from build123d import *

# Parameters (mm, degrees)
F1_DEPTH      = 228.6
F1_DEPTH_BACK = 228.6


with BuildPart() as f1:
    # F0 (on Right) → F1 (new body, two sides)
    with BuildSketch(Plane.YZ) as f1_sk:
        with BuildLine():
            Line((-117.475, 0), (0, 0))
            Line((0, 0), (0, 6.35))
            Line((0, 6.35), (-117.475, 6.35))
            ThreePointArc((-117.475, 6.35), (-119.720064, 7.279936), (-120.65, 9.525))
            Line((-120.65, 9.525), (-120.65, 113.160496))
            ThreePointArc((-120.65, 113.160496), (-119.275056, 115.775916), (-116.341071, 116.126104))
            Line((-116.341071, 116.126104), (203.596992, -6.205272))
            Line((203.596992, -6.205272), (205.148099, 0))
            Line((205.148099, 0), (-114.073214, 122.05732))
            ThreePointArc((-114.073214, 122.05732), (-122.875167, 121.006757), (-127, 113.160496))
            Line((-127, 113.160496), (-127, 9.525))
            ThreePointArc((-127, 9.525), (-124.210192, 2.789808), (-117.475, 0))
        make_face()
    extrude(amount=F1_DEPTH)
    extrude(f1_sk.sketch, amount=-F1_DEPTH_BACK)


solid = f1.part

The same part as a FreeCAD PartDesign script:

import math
import FreeCAD as App
import Part
import Sketcher
from FreeCAD import Vector
Q = App.Units.Quantity

doc = App.newDocument("Part")
body = doc.addObject("PartDesign::Body", "Body")

# Sketch on YZ plane
sketch1 = body.newObject("Sketcher::SketchObject", "Sketch")
sketch1.AttachmentSupport = (doc.getObject("YZ_Plane"), [""])
sketch1.MapMode = "FlatFace"
sketch1.addGeometry([
    Part.LineSegment(Vector(-117.5, 0, 0), Vector(0, 0, 0)),  # 0
    Part.LineSegment(Vector(0, 0, 0), Vector(0, 6.3, 0)),  # 1
    Part.LineSegment(Vector(0, 6.3, 0), Vector(-117.5, 6.3, 0)),  # 2
    Part.ArcOfCircle(Part.Circle(Vector(-117.5, 9.5, 0), Vector(0, 0, 1), 3.2), math.radians(-180), math.radians(-90)),  # 3
    Part.LineSegment(Vector(-120.7, 9.5, 0), Vector(-120.7, 113.2, 0)),  # 4
    Part.ArcOfCircle(Part.Circle(Vector(-117.5, 113.2, 0), Vector(0, 0, 1), 3.2), math.radians(69), math.radians(180)),  # 5
    Part.LineSegment(Vector(-116.3, 116.1, 0), Vector(203.6, -6.2, 0)),  # 6
    Part.LineSegment(Vector(203.6, -6.2, 0), Vector(205.1, 0, 0)),  # 7
    Part.LineSegment(Vector(205.1, 0, 0), Vector(-114.1, 122.1, 0)),  # 8
    Part.ArcOfCircle(Part.Circle(Vector(-117.5, 113.2, 0), Vector(0, 0, 1), 9.5), math.radians(69), math.radians(180)),  # 9
    Part.LineSegment(Vector(-127, 113.2, 0), Vector(-127, 9.5, 0)),  # 10
    Part.ArcOfCircle(Part.Circle(Vector(-117.5, 9.5, 0), Vector(0, 0, 1), 9.5), math.radians(-180), math.radians(-90)),  # 11
], False)
sketch1.addConstraint([
    Sketcher.Constraint("Coincident", 0, 2, 1, 1),
    Sketcher.Constraint("Coincident", 1, 2, 2, 1),
    Sketcher.Constraint("Tangent", 2, 2, 3, 2),
    Sketcher.Constraint("Tangent", 3, 1, 4, 1),
    Sketcher.Constraint("Tangent", 4, 2, 5, 2),
    Sketcher.Constraint("Tangent", 5, 1, 6, 1),
    Sketcher.Constraint("Coincident", 6, 2, 7, 1),
    Sketcher.Constraint("Coincident", 7, 2, 8, 1),
    Sketcher.Constraint("Tangent", 8, 2, 9, 1),
    Sketcher.Constraint("Tangent", 9, 2, 10, 1),
    Sketcher.Constraint("Tangent", 10, 2, 11, 1),
    Sketcher.Constraint("Tangent", 11, 2, 0, 1),
    Sketcher.Constraint("Horizontal", 0),
    Sketcher.Constraint("Vertical", 1),
    Sketcher.Constraint("Horizontal", 2),
    Sketcher.Constraint("Vertical", 4),
    Sketcher.Constraint("Vertical", 10),
    Sketcher.Constraint("Coincident", 0, 2, -1, 1),
    Sketcher.Constraint("Coincident", 9, 3, 5, 3),
    Sketcher.Constraint("Coincident", 11, 3, 3, 3),
    Sketcher.Constraint("Equal", 3, 5),
    Sketcher.Constraint("PointOnObject", 7, 2, -1),
    Sketcher.Constraint("Parallel", 6, 8),
    Sketcher.Constraint("DistanceX", 9, 2, -1, 1, Q("5 in")),
    Sketcher.Constraint("Radius", 3, Q("0.125 in")),
    Sketcher.Constraint("Radius", 9, Q("0.375 in")),
    Sketcher.Constraint("DistanceX", -1, 1, 7, 2, 205.148099),
    Sketcher.Constraint("DistanceY", 4, 1, 4, 2, 103.635496),
    Sketcher.Constraint("DistanceX", -1, 1, 6, 2, 203.596992),
])
pad1 = body.newObject("PartDesign::Pad", "Pad")
pad1.Profile = sketch1
pad1.Type = "TwoLengths"
pad1.Length = Q("9 in")
pad1.Length2 = Q("9 in")

doc.recompute()
